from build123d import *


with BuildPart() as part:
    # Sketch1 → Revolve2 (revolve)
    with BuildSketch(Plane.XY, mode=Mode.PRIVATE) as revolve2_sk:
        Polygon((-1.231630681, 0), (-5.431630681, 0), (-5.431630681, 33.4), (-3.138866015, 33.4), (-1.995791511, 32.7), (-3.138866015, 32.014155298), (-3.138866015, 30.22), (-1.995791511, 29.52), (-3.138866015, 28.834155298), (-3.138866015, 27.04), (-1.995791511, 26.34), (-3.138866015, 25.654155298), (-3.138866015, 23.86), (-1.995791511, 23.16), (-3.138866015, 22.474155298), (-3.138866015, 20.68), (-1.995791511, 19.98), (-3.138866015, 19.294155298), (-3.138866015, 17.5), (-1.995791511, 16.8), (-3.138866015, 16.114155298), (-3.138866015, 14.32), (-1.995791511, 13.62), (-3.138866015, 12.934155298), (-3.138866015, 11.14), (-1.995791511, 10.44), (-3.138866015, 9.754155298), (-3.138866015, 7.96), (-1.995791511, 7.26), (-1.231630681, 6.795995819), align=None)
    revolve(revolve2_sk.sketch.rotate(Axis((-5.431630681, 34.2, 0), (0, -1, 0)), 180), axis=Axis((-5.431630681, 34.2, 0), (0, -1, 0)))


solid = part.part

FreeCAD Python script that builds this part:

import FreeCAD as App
import Part
import Sketcher
from FreeCAD import Vector
Q = App.Units.Quantity

doc = App.newDocument("Part")
body = doc.addObject("PartDesign::Body", "Body")

sketch1 = body.newObject("Sketcher::SketchObject", "Sketch")
sketch1.AttachmentSupport = (doc.getObject("XY_Plane"), [""])
sketch1.MapMode = "FlatFace"
sketch1.addGeometry([
    Part.LineSegment(Vector(-5.431631, 0, 0), Vector(-1.231631, 0, 0)),
    Part.LineSegment(Vector(-1.231631, 0, 0), Vector(-1.231631, 6.795996, 0)),
    Part.LineSegment(Vector(-1.231631, 6.795996, 0), Vector(-1.995792, 7.26, 0)),
    Part.LineSegment(Vector(-1.995792, 7.26, 0), Vector(-3.138866, 7.96, 0)),
    Part.LineSegment(Vector(-3.138866, 7.96, 0), Vector(-3.138866, 9.754155, 0)),
    Part.LineSegment(Vector(-3.138866, 9.754155, 0), Vector(-1.995792, 10.44, 0)),
    Part.LineSegment(Vector(-1.995792, 10.44, 0), Vector(-3.138866, 11.14, 0)),
    Part.LineSegment(Vector(-3.138866, 11.14, 0), Vector(-3.138866, 12.934155, 0)),
    Part.LineSegment(Vector(-3.138866, 12.934155, 0), Vector(-1.995792, 13.62, 0)),
    Part.LineSegment(Vector(-1.995792, 13.62, 0), Vector(-3.138866, 14.32, 0)),
    Part.LineSegment(Vector(-3.138866, 14.32, 0), Vector(-3.138866, 16.114155, 0)),
    Part.LineSegment(Vector(-3.138866, 16.114155, 0), Vector(-1.995792, 16.8, 0)),
    Part.LineSegment(Vector(-1.995792, 16.8, 0), Vector(-3.138866, 17.5, 0)),
    Part.LineSegment(Vector(-3.138866, 17.5, 0), Vector(-3.138866, 19.294155, 0)),
    Part.LineSegment(Vector(-3.138866, 19.294155, 0), Vector(-1.995792, 19.98, 0)),
    Part.LineSegment(Vector(-1.995792, 19.98, 0), Vector(-3.138866, 20.68, 0)),
    Part.LineSegment(Vector(-3.138866, 20.68, 0), Vector(-3.138866, 22.474155, 0)),
    Part.LineSegment(Vector(-3.138866, 22.474155, 0), Vector(-1.995792, 23.16, 0)),
    Part.LineSegment(Vector(-1.995792, 23.16, 0), Vector(-3.138866, 23.86, 0)),
    Part.LineSegment(Vector(-3.138866, 23.86, 0), Vector(-3.138866, 25.654155, 0)),
    Part.LineSegment(Vector(-3.138866, 25.654155, 0), Vector(-1.995792, 26.34, 0)),
    Part.LineSegment(Vector(-1.995792, 26.34, 0), Vector(-3.138866, 27.04, 0)),
    Part.LineSegment(Vector(-3.138866, 27.04, 0), Vector(-3.138866, 28.834155, 0)),
    Part.LineSegment(Vector(-3.138866, 28.834155, 0), Vector(-1.995792, 29.52, 0)),
    Part.LineSegment(Vector(-1.995792, 29.52, 0), Vector(-3.138866, 30.22, 0)),
    Part.LineSegment(Vector(-3.138866, 30.22, 0), Vector(-3.138866, 32.014155, 0)),
    Part.LineSegment(Vector(-3.138866, 32.014155, 0), Vector(-1.995792, 32.7, 0)),
    Part.LineSegment(Vector(-1.995792, 32.7, 0), Vector(-3.138866, 33.4, 0)),
    Part.LineSegment(Vector(-3.138866, 33.4, 0), Vector(-5.431631, 33.4, 0)),
    Part.LineSegment(Vector(-5.431631, 33.4, 0), Vector(-5.431631, 0, 0)),
], False)
sketch1.addGeometry(Part.LineSegment(Vector(-5.431631, 33.4, 0), Vector(-5.431631, 0, 0)), True)
sketch1.addConstraint([
    Sketcher.Constraint("Coincident", 0, 2, 1, 1),
    Sketcher.Constraint("Coincident", 1, 2, 2, 1),
    Sketcher.Constraint("Coincident", 2, 2, 3, 1),
    Sketcher.Constraint("Coincident", 3, 2, 4, 1),
    Sketcher.Constraint("Coincident", 4, 2, 5, 1),
    Sketcher.Constraint("Coincident", 5, 2, 6, 1),
    Sketcher.Constraint("Coincident", 6, 2, 7, 1),
    Sketcher.Constraint("Coincident", 7, 2, 8, 1),
    Sketcher.Constraint("Coincident", 8, 2, 9, 1),
    Sketcher.Constraint("Coincident", 9, 2, 10, 1),
    Sketcher.Constraint("Coincident", 10, 2, 11, 1),
    Sketcher.Constraint("Coincident", 11, 2, 12, 1),
    Sketcher.Constraint("Coincident", 12, 2, 13, 1),
    Sketcher.Constraint("Coincident", 13, 2, 14, 1),
    Sketcher.Constraint("Coincident", 14, 2, 15, 1),
    Sketcher.Constraint("Coincident", 15, 2, 16, 1),
    Sketcher.Constraint("Coincident", 16, 2, 17, 1),
    Sketcher.Constraint("Coincident", 17, 2, 18, 1),
    Sketcher.Constraint("Coincident", 18, 2, 19, 1),
    Sketcher.Constraint("Coincident", 19, 2, 20, 1),
    Sketcher.Constraint("Coincident", 20, 2, 21, 1),
    Sketcher.Constraint("Coincident", 21, 2, 22, 1),
    Sketcher.Constraint("Coincident", 22, 2, 23, 1),
    Sketcher.Constraint("Coincident", 23, 2, 24, 1),
    Sketcher.Constraint("Coincident", 24, 2, 25, 1),
    Sketcher.Constraint("Coincident", 25, 2, 26, 1),
    Sketcher.Constraint("Coincident", 26, 2, 27, 1),
    Sketcher.Constraint("Coincident", 27, 2, 28, 1),
    Sketcher.Constraint("Coincident", 28, 2, 29, 1),
    Sketcher.Constraint("Coincident", 29, 2, 0, 1),
    Sketcher.Constraint("Horizontal", 0),
    Sketcher.Constraint("Vertical", 1),
    Sketcher.Constraint("Vertical", 4),
    Sketcher.Constraint("Vertical", 7),
    Sketcher.Constraint("Vertical", 10),
    Sketcher.Constraint("Vertical", 13),
    Sketcher.Constraint("Vertical", 16),
    Sketcher.Constraint("Vertical", 19),
    Sketcher.Constraint("Vertical", 22),
    Sketcher.Constraint("Vertical", 25),
    Sketcher.Constraint("Horizontal", 28),
    Sketcher.Constraint("Vertical", 29),
    Sketcher.Constraint("Vertical", 30),
    Sketcher.Constraint("Coincident", 30, 1, 28, 2),
    Sketcher.Constraint("PointOnObject", 0, 2, -1),
    Sketcher.Constraint("PointOnObject", 30, 2, -1),
    Sketcher.Constraint("Parallel", 3, 6),
    Sketcher.Constraint("Parallel", 5, 8),
    Sketcher.Constraint("Parallel", 6, 9),
    Sketcher.Constraint("Parallel", 8, 11),
    Sketcher.Constraint("Parallel", 9, 12),
    Sketcher.Constraint("Parallel", 11, 14),
    Sketcher.Constraint("Parallel", 12, 15),
    Sketcher.Constraint("Parallel", 14, 17),
    Sketcher.Constraint("Parallel", 15, 18),
    Sketcher.Constraint("Parallel", 17, 20),
    Sketcher.Constraint("Parallel", 18, 21),
    Sketcher.Constraint("Parallel", 20, 23),
    Sketcher.Constraint("Parallel", 21, 24),
    Sketcher.Constraint("Parallel", 23, 26),
    Sketcher.Constraint("Parallel", 24, 27),
    Sketcher.Constraint("Vertical", 2, 2, 5, 2),
    Sketcher.Constraint("Vertical", 4, 2, 6, 2),
    Sketcher.Constraint("Vertical", 5, 2, 8, 2),
    Sketcher.Constraint("Vertical", 7, 2, 9, 2),
    Sketcher.Constraint("Vertical", 8, 2, 11, 2),
    Sketcher.Constraint("Vertical", 10, 2, 12, 2),
    Sketcher.Constraint("Vertical", 11, 2, 14, 2),
    Sketcher.Constraint("Vertical", 13, 2, 15, 2),
    Sketcher.Constraint("Vertical", 14, 2, 17, 2),
    Sketcher.Constraint("Vertical", 16, 2, 18, 2),
    Sketcher.Constraint("Vertical", 17, 2, 20, 2),
    Sketcher.Constraint("Vertical", 19, 2, 21, 2),
    Sketcher.Constraint("Vertical", 20, 2, 23, 2),
    Sketcher.Constraint("Vertical", 22, 2, 24, 2),
    Sketcher.Constraint("Vertical", 23, 2, 26, 2),
    Sketcher.Constraint("Vertical", 25, 2, 27, 2),
    Sketcher.Constraint("Equal", 4, 7),
    Sketcher.Constraint("Equal", 7, 10),
    Sketcher.Constraint("Equal", 10, 13),
    Sketcher.Constraint("Equal", 13, 16),
    Sketcher.Constraint("Equal", 16, 19),
    Sketcher.Constraint("Equal", 19, 22),
    Sketcher.Constraint("Equal", 22, 25),
    Sketcher.Constraint("DistanceX", 0, 1, 0, 2, Q("4.2 mm")),
    Sketcher.Constraint("DistanceY", 29, 2, 29, 1, Q("33.4 mm")),
    Sketcher.Constraint("DistanceY", -1, 1, 11, 2, Q("16.8 mm")),
    Sketcher.Constraint("DistanceY", -1, 1, 12, 2, Q("17.5 mm")),
    Sketcher.Constraint("Distance", 3, Q("1.34038 mm")),
    Sketcher.Constraint("DistanceX", 28, 2, 28, 1, Q("2.292765 mm")),
    Sketcher.Constraint("DistanceY", 1, 1, 1, 2, Q("6.795996 mm")),
    Sketcher.Constraint("DistanceY", 4, 1, 4, 2, Q("1.794155 mm")),
    Sketcher.Constraint("DistanceX", 0, 2, -1, 1, Q("1.231631 mm")),
])
revolution = body.newObject("PartDesign::Revolution", "Revolution")
revolution.Profile = sketch1
revolution.ReferenceAxis = (sketch1, ["Axis0"])
revolution.Angle = 360

doc.recompute()
